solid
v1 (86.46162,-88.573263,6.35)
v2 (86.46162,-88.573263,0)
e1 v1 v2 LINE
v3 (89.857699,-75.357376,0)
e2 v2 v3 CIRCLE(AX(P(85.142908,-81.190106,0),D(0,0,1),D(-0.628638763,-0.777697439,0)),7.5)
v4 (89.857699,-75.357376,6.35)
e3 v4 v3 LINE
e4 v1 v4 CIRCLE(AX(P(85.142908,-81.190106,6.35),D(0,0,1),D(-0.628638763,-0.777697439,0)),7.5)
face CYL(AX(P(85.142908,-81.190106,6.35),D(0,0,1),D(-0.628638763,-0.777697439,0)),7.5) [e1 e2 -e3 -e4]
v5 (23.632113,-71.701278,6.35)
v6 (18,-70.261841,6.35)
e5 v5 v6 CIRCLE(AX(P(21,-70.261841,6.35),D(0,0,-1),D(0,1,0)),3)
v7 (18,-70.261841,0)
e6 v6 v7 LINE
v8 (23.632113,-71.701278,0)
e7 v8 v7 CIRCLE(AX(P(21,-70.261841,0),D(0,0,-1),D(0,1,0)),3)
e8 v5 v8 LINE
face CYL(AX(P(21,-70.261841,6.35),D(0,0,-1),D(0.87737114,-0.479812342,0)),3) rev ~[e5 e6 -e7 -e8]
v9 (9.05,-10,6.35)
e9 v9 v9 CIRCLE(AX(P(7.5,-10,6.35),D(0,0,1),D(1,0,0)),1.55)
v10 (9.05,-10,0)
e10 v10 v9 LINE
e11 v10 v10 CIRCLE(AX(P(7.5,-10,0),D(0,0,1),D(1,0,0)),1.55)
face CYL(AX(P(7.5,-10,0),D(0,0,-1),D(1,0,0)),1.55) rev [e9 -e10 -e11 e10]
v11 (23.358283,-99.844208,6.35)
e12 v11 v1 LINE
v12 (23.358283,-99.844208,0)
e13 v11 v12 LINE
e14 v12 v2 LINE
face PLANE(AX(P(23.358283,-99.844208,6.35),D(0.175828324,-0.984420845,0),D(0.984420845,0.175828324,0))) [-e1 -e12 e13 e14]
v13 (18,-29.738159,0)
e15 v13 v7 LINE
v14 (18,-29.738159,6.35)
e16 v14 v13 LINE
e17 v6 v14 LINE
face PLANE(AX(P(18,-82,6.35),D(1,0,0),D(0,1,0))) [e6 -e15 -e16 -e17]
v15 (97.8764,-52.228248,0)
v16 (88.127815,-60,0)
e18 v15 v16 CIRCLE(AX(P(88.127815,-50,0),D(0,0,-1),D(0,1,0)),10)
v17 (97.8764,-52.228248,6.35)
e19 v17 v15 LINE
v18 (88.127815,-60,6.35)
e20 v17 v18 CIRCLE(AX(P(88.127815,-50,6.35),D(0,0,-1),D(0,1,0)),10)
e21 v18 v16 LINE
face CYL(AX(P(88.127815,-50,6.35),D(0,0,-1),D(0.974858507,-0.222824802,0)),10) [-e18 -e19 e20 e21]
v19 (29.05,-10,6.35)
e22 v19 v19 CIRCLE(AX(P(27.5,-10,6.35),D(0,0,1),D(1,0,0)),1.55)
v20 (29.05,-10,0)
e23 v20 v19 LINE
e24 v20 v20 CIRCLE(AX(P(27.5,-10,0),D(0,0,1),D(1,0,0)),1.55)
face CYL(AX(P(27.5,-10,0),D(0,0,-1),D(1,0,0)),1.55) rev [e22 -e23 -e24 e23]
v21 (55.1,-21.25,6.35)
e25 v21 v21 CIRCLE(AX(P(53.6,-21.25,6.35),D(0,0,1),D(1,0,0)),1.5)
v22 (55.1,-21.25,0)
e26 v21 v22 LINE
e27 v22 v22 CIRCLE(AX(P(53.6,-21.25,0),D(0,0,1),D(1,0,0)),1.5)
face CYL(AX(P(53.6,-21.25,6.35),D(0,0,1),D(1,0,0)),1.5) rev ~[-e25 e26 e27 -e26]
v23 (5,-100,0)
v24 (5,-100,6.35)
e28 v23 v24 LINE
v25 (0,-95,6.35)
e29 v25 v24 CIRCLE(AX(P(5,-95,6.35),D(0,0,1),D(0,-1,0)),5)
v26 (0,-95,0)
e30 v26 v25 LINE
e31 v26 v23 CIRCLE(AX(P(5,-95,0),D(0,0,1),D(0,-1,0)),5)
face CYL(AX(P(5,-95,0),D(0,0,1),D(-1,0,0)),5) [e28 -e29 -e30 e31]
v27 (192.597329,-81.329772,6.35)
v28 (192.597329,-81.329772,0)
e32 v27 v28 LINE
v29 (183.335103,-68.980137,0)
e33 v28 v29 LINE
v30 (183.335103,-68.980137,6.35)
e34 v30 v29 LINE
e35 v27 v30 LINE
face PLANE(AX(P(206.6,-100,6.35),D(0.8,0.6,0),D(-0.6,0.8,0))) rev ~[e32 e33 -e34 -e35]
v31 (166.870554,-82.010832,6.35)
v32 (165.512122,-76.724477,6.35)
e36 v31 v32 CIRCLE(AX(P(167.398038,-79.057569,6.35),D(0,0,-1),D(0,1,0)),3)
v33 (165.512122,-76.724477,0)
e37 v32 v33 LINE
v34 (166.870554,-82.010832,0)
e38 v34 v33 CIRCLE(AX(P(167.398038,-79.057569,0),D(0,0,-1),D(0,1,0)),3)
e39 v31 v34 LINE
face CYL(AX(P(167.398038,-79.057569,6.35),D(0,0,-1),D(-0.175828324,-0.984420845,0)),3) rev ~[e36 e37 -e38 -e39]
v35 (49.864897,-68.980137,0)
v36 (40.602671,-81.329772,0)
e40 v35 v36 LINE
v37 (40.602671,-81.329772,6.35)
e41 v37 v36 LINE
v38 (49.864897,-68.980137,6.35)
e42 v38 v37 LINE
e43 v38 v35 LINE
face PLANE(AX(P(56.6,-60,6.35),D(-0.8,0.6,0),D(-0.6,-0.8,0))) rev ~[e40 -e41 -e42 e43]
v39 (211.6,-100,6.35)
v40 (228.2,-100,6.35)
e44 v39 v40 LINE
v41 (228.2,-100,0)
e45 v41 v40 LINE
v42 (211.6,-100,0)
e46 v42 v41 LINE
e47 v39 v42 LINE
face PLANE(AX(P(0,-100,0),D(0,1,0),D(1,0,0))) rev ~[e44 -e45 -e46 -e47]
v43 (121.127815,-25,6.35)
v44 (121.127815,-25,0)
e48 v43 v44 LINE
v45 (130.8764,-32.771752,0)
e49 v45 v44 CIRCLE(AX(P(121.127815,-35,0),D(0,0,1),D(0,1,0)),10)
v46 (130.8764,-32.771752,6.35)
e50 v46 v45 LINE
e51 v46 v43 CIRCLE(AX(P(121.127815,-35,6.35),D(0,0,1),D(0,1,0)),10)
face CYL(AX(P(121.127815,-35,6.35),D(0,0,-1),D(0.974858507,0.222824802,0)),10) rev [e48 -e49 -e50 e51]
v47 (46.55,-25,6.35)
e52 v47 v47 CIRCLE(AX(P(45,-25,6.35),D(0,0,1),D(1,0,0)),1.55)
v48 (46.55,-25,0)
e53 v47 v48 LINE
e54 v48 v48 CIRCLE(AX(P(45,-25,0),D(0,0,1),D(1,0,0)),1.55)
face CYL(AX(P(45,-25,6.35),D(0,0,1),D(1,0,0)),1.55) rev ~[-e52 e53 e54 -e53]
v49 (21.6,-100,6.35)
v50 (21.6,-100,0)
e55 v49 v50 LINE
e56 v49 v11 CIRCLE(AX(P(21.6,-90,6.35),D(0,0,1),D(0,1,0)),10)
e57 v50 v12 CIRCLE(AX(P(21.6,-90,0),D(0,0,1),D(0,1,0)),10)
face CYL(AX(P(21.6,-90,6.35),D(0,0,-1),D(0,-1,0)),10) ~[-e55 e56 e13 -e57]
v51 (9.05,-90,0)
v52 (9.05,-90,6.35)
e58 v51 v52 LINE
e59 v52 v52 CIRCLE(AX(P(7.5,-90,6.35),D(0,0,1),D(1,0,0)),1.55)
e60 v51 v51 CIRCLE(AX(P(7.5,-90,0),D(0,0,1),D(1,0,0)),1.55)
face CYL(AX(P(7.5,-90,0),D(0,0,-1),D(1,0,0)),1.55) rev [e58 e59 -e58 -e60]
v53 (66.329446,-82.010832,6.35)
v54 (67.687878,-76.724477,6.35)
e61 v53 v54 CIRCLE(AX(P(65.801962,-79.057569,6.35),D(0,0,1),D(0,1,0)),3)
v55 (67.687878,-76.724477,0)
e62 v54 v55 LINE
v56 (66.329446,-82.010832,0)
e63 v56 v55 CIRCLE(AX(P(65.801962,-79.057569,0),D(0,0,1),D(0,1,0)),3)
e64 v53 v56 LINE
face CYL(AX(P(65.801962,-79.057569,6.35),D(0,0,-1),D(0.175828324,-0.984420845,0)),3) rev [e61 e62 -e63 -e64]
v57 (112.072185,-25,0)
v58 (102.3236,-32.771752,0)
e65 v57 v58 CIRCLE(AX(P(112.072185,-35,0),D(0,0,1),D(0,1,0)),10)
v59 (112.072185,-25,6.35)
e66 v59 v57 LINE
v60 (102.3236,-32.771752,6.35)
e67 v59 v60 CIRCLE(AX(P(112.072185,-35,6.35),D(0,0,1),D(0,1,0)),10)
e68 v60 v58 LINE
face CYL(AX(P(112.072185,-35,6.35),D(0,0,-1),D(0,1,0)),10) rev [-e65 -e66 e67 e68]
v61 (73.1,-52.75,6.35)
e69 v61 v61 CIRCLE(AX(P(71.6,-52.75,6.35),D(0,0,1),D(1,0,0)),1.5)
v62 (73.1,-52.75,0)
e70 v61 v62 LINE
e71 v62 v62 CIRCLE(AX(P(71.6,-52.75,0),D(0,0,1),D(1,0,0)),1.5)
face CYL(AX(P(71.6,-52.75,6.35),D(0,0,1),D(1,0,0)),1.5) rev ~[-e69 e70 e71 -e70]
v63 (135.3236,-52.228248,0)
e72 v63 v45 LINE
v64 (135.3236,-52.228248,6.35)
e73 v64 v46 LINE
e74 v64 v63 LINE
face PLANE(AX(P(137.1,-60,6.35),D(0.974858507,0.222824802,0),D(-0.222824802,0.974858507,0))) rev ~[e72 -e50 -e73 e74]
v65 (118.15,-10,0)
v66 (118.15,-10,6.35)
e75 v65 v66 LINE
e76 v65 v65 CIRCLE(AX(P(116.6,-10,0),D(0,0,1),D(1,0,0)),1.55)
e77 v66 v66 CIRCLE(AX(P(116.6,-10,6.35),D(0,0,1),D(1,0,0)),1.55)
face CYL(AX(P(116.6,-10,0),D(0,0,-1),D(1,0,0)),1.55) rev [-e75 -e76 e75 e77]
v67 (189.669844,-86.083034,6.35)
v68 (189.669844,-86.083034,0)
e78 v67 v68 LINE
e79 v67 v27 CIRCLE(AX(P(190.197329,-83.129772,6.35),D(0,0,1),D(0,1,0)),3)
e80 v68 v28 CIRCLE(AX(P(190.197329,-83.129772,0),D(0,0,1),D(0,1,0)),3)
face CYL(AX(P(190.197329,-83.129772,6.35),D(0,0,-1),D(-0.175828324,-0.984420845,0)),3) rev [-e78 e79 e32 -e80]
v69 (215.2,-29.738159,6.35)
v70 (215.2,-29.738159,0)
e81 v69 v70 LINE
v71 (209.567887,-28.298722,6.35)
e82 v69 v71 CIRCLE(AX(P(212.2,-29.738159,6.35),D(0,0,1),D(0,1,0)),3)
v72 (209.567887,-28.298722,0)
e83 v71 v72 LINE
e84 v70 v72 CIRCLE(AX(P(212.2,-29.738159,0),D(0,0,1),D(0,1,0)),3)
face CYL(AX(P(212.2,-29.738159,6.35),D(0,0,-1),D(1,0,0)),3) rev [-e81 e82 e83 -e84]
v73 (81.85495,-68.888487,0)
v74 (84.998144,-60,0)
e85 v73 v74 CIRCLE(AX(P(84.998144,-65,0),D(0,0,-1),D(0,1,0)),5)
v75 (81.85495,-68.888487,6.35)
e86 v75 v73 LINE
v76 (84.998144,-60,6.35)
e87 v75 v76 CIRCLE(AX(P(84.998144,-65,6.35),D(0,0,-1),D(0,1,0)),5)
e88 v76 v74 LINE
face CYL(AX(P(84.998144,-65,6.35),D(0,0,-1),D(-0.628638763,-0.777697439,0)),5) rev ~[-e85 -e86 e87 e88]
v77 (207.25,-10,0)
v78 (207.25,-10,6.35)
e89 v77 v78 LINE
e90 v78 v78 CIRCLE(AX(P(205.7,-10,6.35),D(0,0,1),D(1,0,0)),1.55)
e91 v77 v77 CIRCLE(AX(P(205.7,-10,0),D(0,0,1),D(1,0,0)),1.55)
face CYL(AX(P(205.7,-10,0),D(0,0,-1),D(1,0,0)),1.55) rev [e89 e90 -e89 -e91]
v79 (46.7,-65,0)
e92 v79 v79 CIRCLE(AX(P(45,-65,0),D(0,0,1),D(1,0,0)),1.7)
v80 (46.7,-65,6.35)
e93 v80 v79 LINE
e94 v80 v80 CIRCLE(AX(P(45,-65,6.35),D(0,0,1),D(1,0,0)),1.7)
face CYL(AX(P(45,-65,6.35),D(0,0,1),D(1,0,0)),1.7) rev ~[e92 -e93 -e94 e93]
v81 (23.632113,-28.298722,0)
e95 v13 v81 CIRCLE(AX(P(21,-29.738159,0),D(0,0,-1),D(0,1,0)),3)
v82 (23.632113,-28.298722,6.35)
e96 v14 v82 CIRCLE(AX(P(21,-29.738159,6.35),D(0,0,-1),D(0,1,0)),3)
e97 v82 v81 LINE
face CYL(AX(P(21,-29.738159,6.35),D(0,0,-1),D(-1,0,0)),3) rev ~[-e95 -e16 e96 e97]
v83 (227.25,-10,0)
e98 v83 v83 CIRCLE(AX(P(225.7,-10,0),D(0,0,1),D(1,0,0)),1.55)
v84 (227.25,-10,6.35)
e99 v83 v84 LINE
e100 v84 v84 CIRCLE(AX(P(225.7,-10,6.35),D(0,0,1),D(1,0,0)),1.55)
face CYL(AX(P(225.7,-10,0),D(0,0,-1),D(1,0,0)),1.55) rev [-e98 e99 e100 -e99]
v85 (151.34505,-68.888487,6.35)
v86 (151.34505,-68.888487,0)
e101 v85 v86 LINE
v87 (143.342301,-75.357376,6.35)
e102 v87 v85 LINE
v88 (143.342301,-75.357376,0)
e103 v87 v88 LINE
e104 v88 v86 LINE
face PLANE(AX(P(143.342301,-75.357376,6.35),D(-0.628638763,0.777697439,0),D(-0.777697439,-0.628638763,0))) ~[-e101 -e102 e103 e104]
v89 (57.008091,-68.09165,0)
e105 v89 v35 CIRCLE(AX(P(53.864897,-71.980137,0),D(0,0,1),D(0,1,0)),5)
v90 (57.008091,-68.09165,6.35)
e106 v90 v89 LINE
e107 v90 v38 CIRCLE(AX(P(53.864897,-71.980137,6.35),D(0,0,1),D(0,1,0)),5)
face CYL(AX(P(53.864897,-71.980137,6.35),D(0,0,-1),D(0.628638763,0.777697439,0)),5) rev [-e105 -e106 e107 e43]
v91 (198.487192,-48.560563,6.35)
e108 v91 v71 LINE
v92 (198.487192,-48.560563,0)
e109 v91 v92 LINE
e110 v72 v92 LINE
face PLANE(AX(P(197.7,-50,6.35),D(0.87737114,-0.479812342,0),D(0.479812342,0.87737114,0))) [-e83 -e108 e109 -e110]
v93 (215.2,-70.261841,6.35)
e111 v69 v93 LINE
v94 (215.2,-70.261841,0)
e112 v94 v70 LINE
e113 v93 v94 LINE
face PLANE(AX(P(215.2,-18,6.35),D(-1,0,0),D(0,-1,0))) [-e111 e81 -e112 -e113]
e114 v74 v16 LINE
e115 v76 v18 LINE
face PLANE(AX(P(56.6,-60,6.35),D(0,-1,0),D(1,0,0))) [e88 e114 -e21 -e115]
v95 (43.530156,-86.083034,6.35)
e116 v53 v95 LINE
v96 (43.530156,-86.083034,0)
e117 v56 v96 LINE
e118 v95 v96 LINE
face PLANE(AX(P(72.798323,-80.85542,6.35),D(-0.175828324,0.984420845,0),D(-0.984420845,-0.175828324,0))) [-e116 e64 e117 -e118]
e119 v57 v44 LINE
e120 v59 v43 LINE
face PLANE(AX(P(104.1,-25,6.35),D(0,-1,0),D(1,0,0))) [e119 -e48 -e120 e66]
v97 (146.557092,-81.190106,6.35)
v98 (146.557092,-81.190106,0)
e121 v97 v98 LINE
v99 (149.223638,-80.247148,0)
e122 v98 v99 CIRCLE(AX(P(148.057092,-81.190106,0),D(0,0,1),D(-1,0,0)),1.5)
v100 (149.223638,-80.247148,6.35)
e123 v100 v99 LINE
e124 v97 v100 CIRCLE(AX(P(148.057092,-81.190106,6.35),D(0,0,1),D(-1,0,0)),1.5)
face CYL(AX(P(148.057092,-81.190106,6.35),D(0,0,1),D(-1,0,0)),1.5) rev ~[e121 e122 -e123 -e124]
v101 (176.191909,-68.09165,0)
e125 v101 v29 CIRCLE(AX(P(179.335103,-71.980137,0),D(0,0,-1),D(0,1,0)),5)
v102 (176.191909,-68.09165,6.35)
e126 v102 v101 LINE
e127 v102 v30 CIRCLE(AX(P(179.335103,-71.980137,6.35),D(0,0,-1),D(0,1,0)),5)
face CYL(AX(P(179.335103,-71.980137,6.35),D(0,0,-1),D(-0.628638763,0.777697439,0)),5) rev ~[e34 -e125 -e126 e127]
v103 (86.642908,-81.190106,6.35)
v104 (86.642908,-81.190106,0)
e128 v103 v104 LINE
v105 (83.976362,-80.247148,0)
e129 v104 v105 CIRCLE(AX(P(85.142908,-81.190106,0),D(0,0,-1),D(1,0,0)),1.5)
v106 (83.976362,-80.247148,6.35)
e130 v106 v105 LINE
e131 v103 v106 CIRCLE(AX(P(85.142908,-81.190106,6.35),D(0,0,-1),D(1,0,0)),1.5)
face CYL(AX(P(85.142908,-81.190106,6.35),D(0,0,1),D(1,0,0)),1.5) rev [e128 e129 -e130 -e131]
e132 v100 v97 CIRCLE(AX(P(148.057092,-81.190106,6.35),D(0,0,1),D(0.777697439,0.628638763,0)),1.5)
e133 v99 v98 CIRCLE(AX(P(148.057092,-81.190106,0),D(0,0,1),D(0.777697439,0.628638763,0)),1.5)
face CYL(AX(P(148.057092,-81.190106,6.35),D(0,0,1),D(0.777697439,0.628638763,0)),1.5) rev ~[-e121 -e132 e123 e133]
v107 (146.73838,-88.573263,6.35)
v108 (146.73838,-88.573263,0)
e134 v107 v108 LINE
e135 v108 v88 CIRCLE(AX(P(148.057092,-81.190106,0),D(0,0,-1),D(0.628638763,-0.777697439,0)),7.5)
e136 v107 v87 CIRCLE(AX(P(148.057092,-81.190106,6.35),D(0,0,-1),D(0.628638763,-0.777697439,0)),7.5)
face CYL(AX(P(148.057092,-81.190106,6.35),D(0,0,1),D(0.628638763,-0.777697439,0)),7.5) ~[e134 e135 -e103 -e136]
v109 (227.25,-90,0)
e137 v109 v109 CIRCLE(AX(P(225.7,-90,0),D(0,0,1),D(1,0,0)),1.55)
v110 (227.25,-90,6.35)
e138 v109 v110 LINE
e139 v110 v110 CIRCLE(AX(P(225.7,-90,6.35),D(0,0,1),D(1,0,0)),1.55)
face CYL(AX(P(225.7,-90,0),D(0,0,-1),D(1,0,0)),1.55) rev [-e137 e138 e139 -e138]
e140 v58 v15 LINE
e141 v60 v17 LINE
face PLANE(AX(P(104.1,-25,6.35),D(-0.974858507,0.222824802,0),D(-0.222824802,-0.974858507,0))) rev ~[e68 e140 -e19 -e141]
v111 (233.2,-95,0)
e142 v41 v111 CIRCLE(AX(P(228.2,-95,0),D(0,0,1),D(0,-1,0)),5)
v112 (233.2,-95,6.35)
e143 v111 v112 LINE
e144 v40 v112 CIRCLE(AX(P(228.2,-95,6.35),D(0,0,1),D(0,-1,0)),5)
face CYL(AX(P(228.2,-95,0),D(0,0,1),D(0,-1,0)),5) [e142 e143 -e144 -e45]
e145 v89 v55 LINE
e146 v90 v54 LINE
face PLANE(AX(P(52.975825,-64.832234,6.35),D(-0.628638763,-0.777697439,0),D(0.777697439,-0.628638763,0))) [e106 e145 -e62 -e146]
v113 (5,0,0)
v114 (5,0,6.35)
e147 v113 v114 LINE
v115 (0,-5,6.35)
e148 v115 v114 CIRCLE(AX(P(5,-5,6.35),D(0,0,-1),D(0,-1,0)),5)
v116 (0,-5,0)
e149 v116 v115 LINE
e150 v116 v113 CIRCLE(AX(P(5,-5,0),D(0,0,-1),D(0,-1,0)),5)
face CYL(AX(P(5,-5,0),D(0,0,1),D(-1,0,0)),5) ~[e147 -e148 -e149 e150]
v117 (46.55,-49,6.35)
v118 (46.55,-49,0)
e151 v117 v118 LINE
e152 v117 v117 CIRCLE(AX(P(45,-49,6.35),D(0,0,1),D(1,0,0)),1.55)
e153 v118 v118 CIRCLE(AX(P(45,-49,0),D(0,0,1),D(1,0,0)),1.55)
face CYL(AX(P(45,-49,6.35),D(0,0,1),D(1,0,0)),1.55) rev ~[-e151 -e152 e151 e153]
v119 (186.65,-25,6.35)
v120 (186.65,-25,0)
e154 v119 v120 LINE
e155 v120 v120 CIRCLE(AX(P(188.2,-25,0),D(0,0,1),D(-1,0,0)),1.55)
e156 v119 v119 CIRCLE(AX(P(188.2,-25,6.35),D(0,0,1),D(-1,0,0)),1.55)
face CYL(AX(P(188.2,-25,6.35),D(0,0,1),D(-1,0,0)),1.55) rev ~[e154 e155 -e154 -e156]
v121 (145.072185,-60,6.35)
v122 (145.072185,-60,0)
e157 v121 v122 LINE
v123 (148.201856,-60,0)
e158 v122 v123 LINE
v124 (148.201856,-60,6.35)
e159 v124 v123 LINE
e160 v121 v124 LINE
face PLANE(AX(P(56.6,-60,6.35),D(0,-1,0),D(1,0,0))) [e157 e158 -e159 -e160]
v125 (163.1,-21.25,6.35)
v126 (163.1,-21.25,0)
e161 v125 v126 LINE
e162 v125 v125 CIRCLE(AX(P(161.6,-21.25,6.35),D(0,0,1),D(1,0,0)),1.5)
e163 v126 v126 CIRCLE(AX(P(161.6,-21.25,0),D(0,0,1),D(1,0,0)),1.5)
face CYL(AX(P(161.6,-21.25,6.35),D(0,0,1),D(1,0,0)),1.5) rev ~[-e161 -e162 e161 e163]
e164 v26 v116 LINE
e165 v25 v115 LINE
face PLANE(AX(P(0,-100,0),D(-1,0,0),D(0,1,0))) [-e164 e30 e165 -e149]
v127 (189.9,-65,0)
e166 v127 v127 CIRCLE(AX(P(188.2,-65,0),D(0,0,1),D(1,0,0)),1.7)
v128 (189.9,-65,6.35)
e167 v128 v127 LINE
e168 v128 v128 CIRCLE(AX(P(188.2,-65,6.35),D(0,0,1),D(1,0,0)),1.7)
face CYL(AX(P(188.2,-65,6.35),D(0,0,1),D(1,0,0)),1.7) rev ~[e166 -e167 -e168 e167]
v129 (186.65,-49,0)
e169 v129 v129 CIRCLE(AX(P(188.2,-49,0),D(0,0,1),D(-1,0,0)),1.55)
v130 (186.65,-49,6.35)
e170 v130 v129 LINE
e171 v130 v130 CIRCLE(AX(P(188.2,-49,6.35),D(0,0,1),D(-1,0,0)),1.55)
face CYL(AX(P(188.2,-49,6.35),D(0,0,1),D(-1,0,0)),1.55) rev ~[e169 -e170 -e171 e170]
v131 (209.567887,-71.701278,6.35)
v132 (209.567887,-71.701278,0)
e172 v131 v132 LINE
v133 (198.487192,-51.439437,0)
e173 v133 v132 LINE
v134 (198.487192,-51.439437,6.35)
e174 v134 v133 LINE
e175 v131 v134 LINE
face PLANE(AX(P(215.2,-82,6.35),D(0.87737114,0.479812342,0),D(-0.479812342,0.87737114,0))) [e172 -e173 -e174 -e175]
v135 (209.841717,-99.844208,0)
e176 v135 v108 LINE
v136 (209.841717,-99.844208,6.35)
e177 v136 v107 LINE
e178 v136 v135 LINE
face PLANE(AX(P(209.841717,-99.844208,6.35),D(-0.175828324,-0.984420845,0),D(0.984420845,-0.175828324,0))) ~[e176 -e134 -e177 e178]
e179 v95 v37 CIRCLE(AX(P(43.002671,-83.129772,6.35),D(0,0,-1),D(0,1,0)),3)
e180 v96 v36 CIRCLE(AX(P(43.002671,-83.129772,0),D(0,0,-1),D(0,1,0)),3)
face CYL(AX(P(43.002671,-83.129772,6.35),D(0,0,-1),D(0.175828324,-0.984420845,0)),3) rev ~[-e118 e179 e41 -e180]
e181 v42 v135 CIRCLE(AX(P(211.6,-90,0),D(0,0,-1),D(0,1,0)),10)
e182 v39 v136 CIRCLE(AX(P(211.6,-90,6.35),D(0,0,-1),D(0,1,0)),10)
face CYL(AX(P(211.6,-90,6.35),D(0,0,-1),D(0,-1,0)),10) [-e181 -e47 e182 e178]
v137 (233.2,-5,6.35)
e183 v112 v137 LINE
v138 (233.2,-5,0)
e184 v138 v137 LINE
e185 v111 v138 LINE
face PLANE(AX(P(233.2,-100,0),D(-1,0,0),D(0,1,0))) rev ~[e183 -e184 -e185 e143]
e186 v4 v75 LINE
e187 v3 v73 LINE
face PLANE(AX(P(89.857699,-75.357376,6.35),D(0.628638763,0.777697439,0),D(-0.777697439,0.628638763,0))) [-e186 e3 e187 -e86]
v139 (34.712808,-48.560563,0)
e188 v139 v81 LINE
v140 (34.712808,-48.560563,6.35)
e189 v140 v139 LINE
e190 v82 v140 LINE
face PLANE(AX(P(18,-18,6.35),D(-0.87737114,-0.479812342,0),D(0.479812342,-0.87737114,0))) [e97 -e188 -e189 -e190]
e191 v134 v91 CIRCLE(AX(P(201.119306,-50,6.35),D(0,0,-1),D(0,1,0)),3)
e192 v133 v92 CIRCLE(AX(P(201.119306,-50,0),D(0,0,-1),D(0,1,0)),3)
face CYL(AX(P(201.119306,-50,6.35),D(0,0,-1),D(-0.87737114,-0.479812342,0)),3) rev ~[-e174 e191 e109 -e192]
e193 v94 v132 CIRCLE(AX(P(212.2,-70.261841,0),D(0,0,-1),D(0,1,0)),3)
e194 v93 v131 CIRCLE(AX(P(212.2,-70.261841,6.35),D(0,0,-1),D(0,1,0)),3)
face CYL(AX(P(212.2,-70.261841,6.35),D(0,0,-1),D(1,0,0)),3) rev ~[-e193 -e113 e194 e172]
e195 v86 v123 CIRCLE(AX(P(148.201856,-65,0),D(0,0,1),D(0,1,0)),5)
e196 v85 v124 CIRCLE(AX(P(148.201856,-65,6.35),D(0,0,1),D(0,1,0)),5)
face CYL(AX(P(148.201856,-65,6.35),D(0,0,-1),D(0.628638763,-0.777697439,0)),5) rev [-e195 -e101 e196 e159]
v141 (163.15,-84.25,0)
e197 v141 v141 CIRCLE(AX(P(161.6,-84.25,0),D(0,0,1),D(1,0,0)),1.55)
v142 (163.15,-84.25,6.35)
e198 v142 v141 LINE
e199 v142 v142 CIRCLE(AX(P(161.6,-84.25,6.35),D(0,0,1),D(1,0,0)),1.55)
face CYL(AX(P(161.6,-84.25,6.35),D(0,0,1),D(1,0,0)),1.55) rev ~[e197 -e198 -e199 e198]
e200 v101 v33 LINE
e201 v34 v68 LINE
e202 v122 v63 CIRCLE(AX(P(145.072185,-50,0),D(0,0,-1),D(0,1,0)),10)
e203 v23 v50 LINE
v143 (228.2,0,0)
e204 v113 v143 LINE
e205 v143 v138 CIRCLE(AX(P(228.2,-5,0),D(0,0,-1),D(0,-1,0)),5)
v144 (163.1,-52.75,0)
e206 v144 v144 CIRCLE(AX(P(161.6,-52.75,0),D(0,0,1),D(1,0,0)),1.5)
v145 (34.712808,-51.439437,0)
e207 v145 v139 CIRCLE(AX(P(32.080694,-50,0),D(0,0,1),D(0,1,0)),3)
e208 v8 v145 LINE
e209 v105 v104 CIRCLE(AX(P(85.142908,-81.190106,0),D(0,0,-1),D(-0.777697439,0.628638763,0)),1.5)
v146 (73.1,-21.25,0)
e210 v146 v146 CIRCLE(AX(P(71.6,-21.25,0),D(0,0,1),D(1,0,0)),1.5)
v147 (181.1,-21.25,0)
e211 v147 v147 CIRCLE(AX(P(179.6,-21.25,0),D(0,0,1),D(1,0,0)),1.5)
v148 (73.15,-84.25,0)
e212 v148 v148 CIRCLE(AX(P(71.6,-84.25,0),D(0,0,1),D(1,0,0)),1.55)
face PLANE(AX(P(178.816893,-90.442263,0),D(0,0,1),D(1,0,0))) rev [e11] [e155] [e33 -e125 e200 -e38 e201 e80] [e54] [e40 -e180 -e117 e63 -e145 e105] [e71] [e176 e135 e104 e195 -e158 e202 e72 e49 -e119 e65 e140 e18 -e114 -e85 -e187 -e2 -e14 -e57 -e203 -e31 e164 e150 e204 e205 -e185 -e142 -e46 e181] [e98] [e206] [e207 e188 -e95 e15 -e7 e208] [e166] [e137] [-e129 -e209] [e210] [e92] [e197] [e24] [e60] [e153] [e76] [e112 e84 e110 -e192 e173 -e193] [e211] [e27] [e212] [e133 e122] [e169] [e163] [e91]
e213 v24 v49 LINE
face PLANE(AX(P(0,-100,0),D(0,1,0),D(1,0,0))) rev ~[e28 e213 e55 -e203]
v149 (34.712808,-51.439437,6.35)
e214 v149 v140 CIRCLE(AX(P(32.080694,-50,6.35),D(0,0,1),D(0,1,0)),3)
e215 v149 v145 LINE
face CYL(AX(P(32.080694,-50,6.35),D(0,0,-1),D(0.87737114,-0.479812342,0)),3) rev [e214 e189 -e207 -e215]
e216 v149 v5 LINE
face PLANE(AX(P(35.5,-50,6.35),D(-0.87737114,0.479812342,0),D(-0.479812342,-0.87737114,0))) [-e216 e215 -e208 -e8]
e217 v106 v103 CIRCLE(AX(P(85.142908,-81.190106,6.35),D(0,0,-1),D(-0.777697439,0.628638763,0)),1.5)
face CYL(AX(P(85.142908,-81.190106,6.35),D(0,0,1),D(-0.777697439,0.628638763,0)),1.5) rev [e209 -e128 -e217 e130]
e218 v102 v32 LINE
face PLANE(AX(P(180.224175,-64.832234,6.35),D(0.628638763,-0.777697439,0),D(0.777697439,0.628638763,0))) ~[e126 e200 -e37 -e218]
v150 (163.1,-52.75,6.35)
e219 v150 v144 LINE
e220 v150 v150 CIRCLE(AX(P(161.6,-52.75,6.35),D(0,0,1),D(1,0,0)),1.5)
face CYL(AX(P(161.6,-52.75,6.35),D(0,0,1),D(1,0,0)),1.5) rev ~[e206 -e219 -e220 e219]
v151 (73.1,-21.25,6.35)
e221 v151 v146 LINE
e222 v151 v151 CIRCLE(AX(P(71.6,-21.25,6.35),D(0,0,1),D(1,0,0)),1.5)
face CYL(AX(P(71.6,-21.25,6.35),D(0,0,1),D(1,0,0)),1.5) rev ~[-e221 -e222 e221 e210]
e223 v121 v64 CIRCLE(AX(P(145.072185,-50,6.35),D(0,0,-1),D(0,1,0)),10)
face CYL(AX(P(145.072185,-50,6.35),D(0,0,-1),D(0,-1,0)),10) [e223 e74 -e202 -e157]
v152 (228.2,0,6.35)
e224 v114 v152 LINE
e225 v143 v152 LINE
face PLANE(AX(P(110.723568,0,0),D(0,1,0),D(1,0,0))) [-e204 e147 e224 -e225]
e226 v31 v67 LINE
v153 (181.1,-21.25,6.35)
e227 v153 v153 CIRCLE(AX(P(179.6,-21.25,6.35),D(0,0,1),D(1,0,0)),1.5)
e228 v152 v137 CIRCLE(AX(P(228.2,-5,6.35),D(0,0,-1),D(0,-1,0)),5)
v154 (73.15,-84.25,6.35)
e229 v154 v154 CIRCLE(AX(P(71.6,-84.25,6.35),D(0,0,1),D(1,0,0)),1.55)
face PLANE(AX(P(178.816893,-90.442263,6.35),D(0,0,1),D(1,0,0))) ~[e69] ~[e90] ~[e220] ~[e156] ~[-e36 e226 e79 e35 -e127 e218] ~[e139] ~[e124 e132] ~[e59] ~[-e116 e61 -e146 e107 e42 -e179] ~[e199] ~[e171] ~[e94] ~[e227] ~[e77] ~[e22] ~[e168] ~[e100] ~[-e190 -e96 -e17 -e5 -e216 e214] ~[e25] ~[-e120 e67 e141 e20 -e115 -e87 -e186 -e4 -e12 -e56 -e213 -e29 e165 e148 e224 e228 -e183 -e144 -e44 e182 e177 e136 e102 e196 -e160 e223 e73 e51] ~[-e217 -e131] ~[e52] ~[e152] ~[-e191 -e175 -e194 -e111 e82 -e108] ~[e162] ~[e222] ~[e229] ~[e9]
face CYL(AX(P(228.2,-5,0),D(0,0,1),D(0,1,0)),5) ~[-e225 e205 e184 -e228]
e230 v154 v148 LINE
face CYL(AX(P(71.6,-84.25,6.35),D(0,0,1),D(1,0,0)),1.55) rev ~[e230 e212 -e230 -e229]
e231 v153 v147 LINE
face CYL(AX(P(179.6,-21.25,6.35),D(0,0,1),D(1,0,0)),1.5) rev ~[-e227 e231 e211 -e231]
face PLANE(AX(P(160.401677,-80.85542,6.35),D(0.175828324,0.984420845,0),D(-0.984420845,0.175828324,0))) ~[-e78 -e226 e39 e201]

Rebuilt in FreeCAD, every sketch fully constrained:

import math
import FreeCAD as App
import Part
import Sketcher
from FreeCAD import Vector
Q = App.Units.Quantity


def edges_at(feature, points):
    """Names of the edges that pass closest to the given points."""
    edges = feature.Shape.Edges
    near = lambda p: min(range(len(edges)), key=lambda i: edges[i].distToShape(Part.Vertex(*p))[0])
    return sorted({f"Edge{near(p) + 1}" for p in points})


def add_polygon(sketch, points):
    """Adds a closed chain of lines whose ends are joined by coincident constraints."""
    first, n = sketch.GeometryCount, len(points)
    for a, b in zip(points, points[1:] + points[:1]):
        sketch.addGeometry(Part.LineSegment(App.Vector(*a, 0), App.Vector(*b, 0)), False)
    for i in range(n):
        sketch.addConstraint(Sketcher.Constraint("Coincident", first + i, 2, first + (i + 1) % n, 1))

doc = App.newDocument("Part")
body = doc.addObject("PartDesign::Body", "Body")

# Sketch on XY plane
sketch1 = body.newObject("Sketcher::SketchObject", "Sketch")
sketch1.AttachmentSupport = (doc.getObject("XY_Plane"), [""])
sketch1.MapMode = "FlatFace"
add_polygon(sketch1, [(0, 0), (0, -100), (233.2, -100), (233.2, 0)])  # lines 0-3
sketch1.addGeometry(Part.Circle(Vector(7.5, -90, 0), Vector(0, 0, 1), 1.6), False)  # 4
sketch1.addGeometry(Part.Circle(Vector(225.7, -90, 0), Vector(0, 0, 1), 1.6), False)  # 5
sketch1.addGeometry(Part.Circle(Vector(7.5, -10, 0), Vector(0, 0, 1), 1.6), False)  # 6
sketch1.addGeometry(Part.Circle(Vector(27.5, -10, 0), Vector(0, 0, 1), 1.6), False)  # 7
sketch1.addGeometry(Part.Circle(Vector(116.6, -10, 0), Vector(0, 0, 1), 1.6), False)  # 8
sketch1.addGeometry(Part.Circle(Vector(205.7, -10, 0), Vector(0, 0, 1), 1.6), False)  # 9
sketch1.addGeometry(Part.Circle(Vector(225.7, -10, 0), Vector(0, 0, 1), 1.6), False)  # 10
sketch1.addConstraint([
    Sketcher.Constraint("Vertical", 0),
    Sketcher.Constraint("Horizontal", 1),
    Sketcher.Constraint("Vertical", 2),
    Sketcher.Constraint("Horizontal", 3),
    Sketcher.Constraint("Coincident", 3, 2, -1, 1),
    Sketcher.Constraint("Equal", 4, 5),
    Sketcher.Constraint("Equal", 5, 6),
    Sketcher.Constraint("Equal", 6, 7),
    Sketcher.Constraint("Equal", 7, 8),
    Sketcher.Constraint("Equal", 8, 9),
    Sketcher.Constraint("Equal", 9, 10),
    Sketcher.Constraint("Horizontal", 4, 3, 5, 3),
    Sketcher.Constraint("Horizontal", 6, 3, 7, 3),
    Sketcher.Constraint("Horizontal", 7, 3, 8, 3),
    Sketcher.Constraint("Horizontal", 8, 3, 9, 3),
    Sketcher.Constraint("Horizontal", 9, 3, 10, 3),
    Sketcher.Constraint("Vertical", 4, 3, 6, 3),
    Sketcher.Constraint("Vertical", 5, 3, 10, 3),
    Sketcher.Constraint("Diameter", 4, Q("3.1 mm")),
    Sketcher.Constraint("DistanceY", 0, 2, 0, 1, Q("100 mm")),
    Sketcher.Constraint("DistanceX", 1, 1, 1, 2, Q("233.2 mm")),
    Sketcher.Constraint("DistanceY", 4, 3, -1, 1, Q("90 mm")),
    Sketcher.Constraint("DistanceY", 6, 3, -1, 1, Q("10 mm")),
    Sketcher.Constraint("DistanceX", 6, 3, 7, 3, Q("20 mm")),
    Sketcher.Constraint("DistanceX", 9, 3, 5, 3, Q("20 mm")),
    Sketcher.Constraint("DistanceX", -1, 1, 4, 3, Q("7.5 mm")),
    Sketcher.Constraint("DistanceX", -1, 1, 5, 3, Q("225.7 mm")),
    Sketcher.Constraint("DistanceX", -1, 1, 8, 3, Q("116.6 mm")),
])
pad1 = body.newObject("PartDesign::Pad", "Pad")
pad1.Profile = sketch1
pad1.Length = 6.35
doc.recompute()

fillet = body.newObject("PartDesign::Fillet", "Fillet")
fillet.Base = (pad1, edges_at(pad1, [
    (233.2, -100, 3.175),
    (0, -100, 3.175),
    (0, 0, 3.175),
    (233.2, 0, 3.175),
]))
fillet.Radius = 5

# Sketch on XY plane
sketch2 = body.newObject("Sketcher::SketchObject", "Sketch001")
sketch2.AttachmentSupport = (doc.getObject("XY_Plane"), [""])
sketch2.MapMode = "FlatFace"
sketch2.AttachmentOffset = App.Placement(Vector(0, 0, 6.35), App.Rotation())
sketch2.addGeometry([
    Part.Circle(Vector(45, -25, 0), Vector(0, 0, 1), 1.6),
    Part.Circle(Vector(45, -49, 0), Vector(0, 0, 1), 1.6),
    Part.Circle(Vector(188.2, -49, 0), Vector(0, 0, 1), 1.6),
    Part.Circle(Vector(188.2, -25, 0), Vector(0, 0, 1), 1.6),
], False)
sketch2.addConstraint([
    Sketcher.Constraint("Equal", 0, 1),
    Sketcher.Constraint("Equal", 1, 2),
    Sketcher.Constraint("Equal", 2, 3),
    Sketcher.Constraint("Horizontal", 1, 3, 2, 3),
    Sketcher.Constraint("Horizontal", 0, 3, 3, 3),
    Sketcher.Constraint("Vertical", 0, 3, 1, 3),
    Sketcher.Constraint("Vertical", 2, 3, 3, 3),
    Sketcher.Constraint("Diameter", 0, Q("3.1 mm")),
    Sketcher.Constraint("DistanceX", -1, 1, 0, 3, Q("45 mm")),
    Sketcher.Constraint("DistanceY", 0, 3, -1, 1, Q("25 mm")),
    Sketcher.Constraint("DistanceY", 1, 3, -1, 1, Q("49 mm")),
    Sketcher.Constraint("DistanceX", -1, 1, 2, 3, Q("188.2 mm")),
])
pocket1 = body.newObject("PartDesign::Pocket", "Pocket")
pocket1.Profile = sketch2
pocket1.Length = 6.35

# Sketch on XY plane
sketch3 = body.newObject("Sketcher::SketchObject", "Sketch002")
sketch3.AttachmentSupport = (doc.getObject("XY_Plane"), [""])
sketch3.MapMode = "FlatFace"
sketch3.AttachmentOffset = App.Placement(Vector(0, 0, 6.35), App.Rotation())
add_polygon(sketch3, [(120.7, 0), (152.3, 0), (130.7, 24.7), (85.7, 24.7), (85.7, 12.7), (95.7, 12.7), (95.7, 16.7), (120.7, 16.7)])  # lines 0-7
sketch3.addConstraint([
    Sketcher.Constraint("Horizontal", 0),
    Sketcher.Constraint("Horizontal", 2),
    Sketcher.Constraint("Vertical", 3),
    Sketcher.Constraint("Horizontal", 4),
    Sketcher.Constraint("Vertical", 5),
    Sketcher.Constraint("Horizontal", 6),
    Sketcher.Constraint("Vertical", 7),
    Sketcher.Constraint("PointOnObject", 0, 2, -1),
    Sketcher.Constraint("DistanceX", 2, 2, 2, 1, Q("45 mm")),
    Sketcher.Constraint("DistanceX", 4, 1, 4, 2, Q("10 mm")),
    Sketcher.Constraint("DistanceX", 6, 1, 6, 2, Q("25 mm")),
    Sketcher.Constraint("DistanceY", 3, 2, 3, 1, Q("12 mm")),
    Sketcher.Constraint("DistanceY", 5, 1, 5, 2, Q("4 mm")),
    Sketcher.Constraint("DistanceY", 7, 2, 7, 1, Q("16.7 mm")),
    Sketcher.Constraint("DistanceX", 0, 1, 0, 2, Q("31.59 mm")),
    Sketcher.Constraint("DistanceX", -1, 1, 0, 2, Q("152.313568 mm")),
])
pad2 = body.newObject("PartDesign::Pad", "Pad001")
pad2.Profile = sketch3
pad2.Length = 6.35
pad2.Reversed = True
doc.recompute()

fillet2 = body.newObject("PartDesign::Fillet", "Fillet001")
fillet2.Base = (pad2, edges_at(pad2, [(85.724, 12.7, 3.175)]))
fillet2.Radius = 5
doc.recompute()

fillet3 = body.newObject("PartDesign::Fillet", "Fillet002")
fillet3.Base = (fillet2, edges_at(fillet2, [(120.724, 0, 3.175)]))
fillet3.Radius = 10
doc.recompute()

fillet4 = body.newObject("PartDesign::Fillet", "Fillet003")
fillet4.Base = (fillet3, edges_at(fillet3, [(85.724, 24.7, 3.175)]))
fillet4.Radius = 2
doc.recompute()

fillet5 = body.newObject("PartDesign::Fillet", "Fillet004")
fillet5.Base = (fillet4, edges_at(fillet4, [(130.724, 24.7, 3.175), (152.314, 0, 3.175)]))
fillet5.Radius = 20
doc.recompute()

fillet6 = body.newObject("PartDesign::Fillet", "Fillet005")
fillet6.Base = (fillet5, edges_at(fillet5, [(120.724, 16.7, 3.175)]))
fillet6.Radius = 5

# Sketch on XY plane
sketch4 = body.newObject("Sketcher::SketchObject", "Sketch003")
sketch4.AttachmentSupport = (doc.getObject("XY_Plane"), [""])
sketch4.MapMode = "FlatFace"
sketch4.addGeometry([
    Part.LineSegment(Vector(161.4, 0, 0), Vector(110.7, 0, 0)),  # 0
    Part.ArcOfCircle(Part.Circle(Vector(110.7, 10, 0), Vector(0, 0, 1), 10), math.radians(-90), math.radians(0)),  # 1
    Part.LineSegment(Vector(120.7, 10, 0), Vector(120.7, 11.7, 0)),  # 2
    Part.ArcOfCircle(Part.Circle(Vector(115.7, 11.7, 0), Vector(0, 0, 1), 5), math.radians(0), math.radians(90)),  # 3
    Part.LineSegment(Vector(115.7, 16.7, 0), Vector(95.7, 16.7, 0)),  # 4
    Part.LineSegment(Vector(95.7, 16.7, 0), Vector(95.7, 12.7, 0)),  # 5
    Part.LineSegment(Vector(95.7, 12.7, 0), Vector(90.7, 12.7, 0)),  # 6
    Part.ArcOfCircle(Part.Circle(Vector(90.7, 17.7, 0), Vector(0, 0, 1), 5), math.radians(180), math.radians(270)),  # 7
    Part.LineSegment(Vector(85.7, 17.7, 0), Vector(85.7, 22.7, 0)),  # 8
    Part.ArcOfCircle(Part.Circle(Vector(87.7, 22.7, 0), Vector(0, 0, 1), 2), math.radians(90), math.radians(180)),  # 9
    Part.LineSegment(Vector(87.7, 24.7, 0), Vector(121.6, 24.7, 0)),  # 10
    Part.ArcOfCircle(Part.Circle(Vector(121.6, 4.7, 0), Vector(0, 0, 1), 20), math.radians(41), math.radians(90)),  # 11
    Part.LineSegment(Vector(136.7, 17.9, 0), Vector(146.3, 6.8, 0)),  # 12
    Part.ArcOfCircle(Part.Circle(Vector(161.4, 20, 0), Vector(0, 0, 1), 20), math.radians(-139), math.radians(-90)),  # 13
], False)
sketch4.addConstraint([
    Sketcher.Constraint("Tangent", 0, 2, 1, 1),
    Sketcher.Constraint("Tangent", 1, 2, 2, 1),
    Sketcher.Constraint("Tangent", 2, 2, 3, 1),
    Sketcher.Constraint("Tangent", 3, 2, 4, 1),
    Sketcher.Constraint("Coincident", 4, 2, 5, 1),
    Sketcher.Constraint("Coincident", 5, 2, 6, 1),
    Sketcher.Constraint("Tangent", 6, 2, 7, 2),
    Sketcher.Constraint("Tangent", 7, 1, 8, 1),
    Sketcher.Constraint("Tangent", 8, 2, 9, 2),
    Sketcher.Constraint("Tangent", 9, 1, 10, 1),
    Sketcher.Constraint("Tangent", 10, 2, 11, 2),
    Sketcher.Constraint("Tangent", 11, 1, 12, 1),
    Sketcher.Constraint("Tangent", 12, 2, 13, 1),
    Sketcher.Constraint("Tangent", 13, 2, 0, 1),
    Sketcher.Constraint("Horizontal", 0),
    Sketcher.Constraint("Vertical", 2),
    Sketcher.Constraint("Horizontal", 4),
    Sketcher.Constraint("Vertical", 5),
    Sketcher.Constraint("Horizontal", 6),
    Sketcher.Constraint("Vertical", 8),
    Sketcher.Constraint("Horizontal", 10),
    Sketcher.Constraint("Equal", 3, 7),
    Sketcher.Constraint("Equal", 11, 13),
    Sketcher.Constraint("PointOnObject", 0, 2, -1),
    Sketcher.Constraint("Equal", 6, 8),
    Sketcher.Constraint("Radius", 1, Q("10 mm")),
    Sketcher.Constraint("Radius", 3, Q("5 mm")),
    Sketcher.Constraint("Radius", 9, Q("2 mm")),
    Sketcher.Constraint("Radius", 11, Q("20 mm")),
    Sketcher.Constraint("DistanceX", 4, 2, 4, 1, Q("20 mm")),
    Sketcher.Constraint("DistanceX", 6, 2, 6, 1, Q("5 mm")),
    Sketcher.Constraint("DistanceY", 5, 2, 5, 1, Q("4 mm")),
    Sketcher.Constraint("DistanceY", 2, 1, 2, 2, Q("1.7 mm")),
    Sketcher.Constraint("DistanceX", 0, 2, 0, 1, Q("50.67159 mm")),
    Sketcher.Constraint("DistanceX", 10, 1, 10, 2, Q("33.91841 mm")),
    Sketcher.Constraint("DistanceX", -1, 1, 1, 3, Q("110.723568 mm")),
])
pocket2 = body.newObject("PartDesign::Pocket", "Pocket001")
pocket2.Profile = sketch4
pocket2.Length = 10
pocket2.Reversed = True

# Sketch on XY plane
sketch5 = body.newObject("Sketcher::SketchObject", "Sketch004")
sketch5.AttachmentSupport = (doc.getObject("XY_Plane"), [""])
sketch5.MapMode = "FlatFace"
sketch5.AttachmentOffset = App.Placement(Vector(0, 0, 6.35), App.Rotation())
add_polygon(sketch5, [(57, -60), (27, -100), (207, -100), (177, -60)])  # lines 0-3
sketch5.addConstraint([
    Sketcher.Constraint("Horizontal", 1),
    Sketcher.Constraint("Horizontal", 3),
    Sketcher.Constraint("Equal", 0, 2),
    Sketcher.Constraint("DistanceX", 1, 1, 1, 2, Q("180 mm")),
    Sketcher.Constraint("DistanceX", 3, 2, 3, 1, Q("120 mm")),
    Sketcher.Constraint("Distance", 0, Q("50 mm")),
    Sketcher.Constraint("DistanceY", 0, 2, -1, 1, Q("100 mm")),
    Sketcher.Constraint("DistanceX", -1, 1, 0, 2, Q("26.6 mm")),
])
pocket3 = body.newObject("PartDesign::Pocket", "Pocket002")
pocket3.Profile = sketch5
pocket3.Length = 10

# Sketch on XY plane
sketch6 = body.newObject("Sketcher::SketchObject", "Sketch005")
sketch6.AttachmentSupport = (doc.getObject("XY_Plane"), [""])
sketch6.MapMode = "FlatFace"
sketch6.AttachmentOffset = App.Placement(Vector(0, 0, 6.35), App.Rotation())
sketch6.addGeometry([
    Part.Circle(Vector(71.6, -21.2, 0), Vector(0, 0, 1), 1.5),
    Part.Circle(Vector(161.6, -21.2, 0), Vector(0, 0, 1), 1.5),
    Part.Circle(Vector(161.6, -52.8, 0), Vector(0, 0, 1), 1.5),
    Part.Circle(Vector(71.6, -52.8, 0), Vector(0, 0, 1), 1.5),
], False)
sketch6.addConstraint([
    Sketcher.Constraint("Equal", 0, 1),
    Sketcher.Constraint("Equal", 1, 2),
    Sketcher.Constraint("Equal", 2, 3),
    Sketcher.Constraint("Horizontal", 0, 3, 1, 3),
    Sketcher.Constraint("Horizontal", 2, 3, 3, 3),
    Sketcher.Constraint("Vertical", 1, 3, 2, 3),
    Sketcher.Constraint("Vertical", 0, 3, 3, 3),
    Sketcher.Constraint("Diameter", 0, Q("3 mm")),
    Sketcher.Constraint("DistanceX", 0, 3, 1, 3, Q("90 mm")),
    Sketcher.Constraint("DistanceX", -1, 1, 0, 3, Q("71.6 mm")),
    Sketcher.Constraint("DistanceY", 2, 3, 1, 3, Q("31.5 mm")),
    Sketcher.Constraint("DistanceY", 0, 3, -1, 1, Q("21.25 mm")),
])
pocket4 = body.newObject("PartDesign::Pocket", "Pocket003")
pocket4.Profile = sketch6
pocket4.Length = 10
doc.recompute()

fillet7 = body.newObject("PartDesign::Fillet", "Fillet006")
fillet7.Base = (pocket4, edges_at(pocket4, [
    (206.6, -100, 3.175),
    (26.6, -100, 3.175),
    (56.6, -60, 3.175),
    (176.6, -60, 3.175),
]))
fillet7.Radius = 10

# Sketch on XY plane
sketch7 = body.newObject("Sketcher::SketchObject", "Sketch006")
sketch7.AttachmentSupport = (doc.getObject("XY_Plane"), [""])
sketch7.MapMode = "FlatFace"
sketch7.AttachmentOffset = App.Placement(Vector(0, 0, 6.35), App.Rotation())
add_polygon(sketch7, [(96, -60), (137, -60), (129, -25), (104, -25)])  # lines 0-3
sketch7.addConstraint([
    Sketcher.Constraint("Horizontal", 0),
    Sketcher.Constraint("Horizontal", 2),
    Sketcher.Constraint("Equal", 1, 3),
    Sketcher.Constraint("DistanceX", 0, 1, 0, 2, Q("41 mm")),
    Sketcher.Constraint("DistanceX", 2, 2, 2, 1, Q("25 mm")),
    Sketcher.Constraint("DistanceY", 0, 2, -1, 1, Q("60 mm")),
    Sketcher.Constraint("DistanceY", 1, 2, -1, 1, Q("25 mm")),
    Sketcher.Constraint("DistanceX", -1, 1, 0, 2, Q("137.1 mm")),
])
pocket5 = body.newObject("PartDesign::Pocket", "Pocket004")
pocket5.Profile = sketch7
pocket5.Length = 10
doc.recompute()

fillet8 = body.newObject("PartDesign::Fillet", "Fillet007")
fillet8.Base = (pocket5, edges_at(pocket5, [
    (137.1, -60, 3.175),
    (96.1, -60, 3.175),
    (104.1, -25, 3.175),
    (129.1, -25, 3.175),
]))
fillet8.Radius = 10

# Sketch on XY plane
sketch8 = body.newObject("Sketcher::SketchObject", "Sketch007")
sketch8.AttachmentSupport = (doc.getObject("XY_Plane"), [""])
sketch8.MapMode = "FlatFace"
sketch8.AttachmentOffset = App.Placement(Vector(0, 0, 6.35), App.Rotation())
sketch8.addGeometry([
    Part.Circle(Vector(53.6, -21.2, 0), Vector(0, 0, 1), 1.5),
    Part.Circle(Vector(179.6, -21.2, 0), Vector(0, 0, 1), 1.5),
], False)
sketch8.addConstraint([
    Sketcher.Constraint("Equal", 0, 1),
    Sketcher.Constraint("Horizontal", 0, 3, 1, 3),
    Sketcher.Constraint("Diameter", 0, Q("3 mm")),
    Sketcher.Constraint("DistanceX", 0, 3, 1, 3, Q("126 mm")),
    Sketcher.Constraint("DistanceX", -1, 1, 0, 3, Q("53.6 mm")),
    Sketcher.Constraint("DistanceY", 0, 3, -1, 1, Q("21.25 mm")),
])
pocket6 = body.newObject("PartDesign::Pocket", "Pocket005")
pocket6.Profile = sketch8
pocket6.Length = 10

# Sketch on XY plane
sketch9 = body.newObject("Sketcher::SketchObject", "Sketch008")
sketch9.AttachmentSupport = (doc.getObject("XY_Plane"), [""])
sketch9.MapMode = "FlatFace"
sketch9.AttachmentOffset = App.Placement(Vector(0, 0, 6.35), App.Rotation())
sketch9.addGeometry([
    Part.LineSegment(Vector(53.6, -64, 0), Vector(53, -64.8, 0)),  # 0
    Part.LineSegment(Vector(53, -64.8, 0), Vector(80.4, -87, 0)),  # 1
    Part.ArcOfCircle(Part.Circle(Vector(85.1, -81.2, 0), Vector(0, 0, 1), 7.5), math.radians(-129), math.radians(51)),  # 2
    Part.LineSegment(Vector(89.9, -75.4, 0), Vector(70.9, -60, 0)),  # 3
    Part.LineSegment(Vector(70.9, -60, 0), Vector(61.6, -60, 0)),  # 4
    Part.ArcOfCircle(Part.Circle(Vector(61.6, -70, 0), Vector(0, 0, 1), 10), math.radians(90), math.radians(143)),  # 5
    Part.ArcOfCircle(Part.Circle(Vector(85.1, -81.2, 0), Vector(0, 0, 1), 1.5), math.radians(141), math.radians(360)),  # 6
    Part.ArcOfCircle(Part.Circle(Vector(85.1, -81.2, 0), Vector(0, 0, 1), 1.5), math.radians(0), math.radians(141)),  # 7
], False)
sketch9.addConstraint([
    Sketcher.Constraint("Coincident", 0, 2, 1, 1),
    Sketcher.Constraint("Tangent", 1, 2, 2, 1),
    Sketcher.Constraint("Tangent", 2, 2, 3, 1),
    Sketcher.Constraint("Coincident", 3, 2, 4, 1),
    Sketcher.Constraint("Tangent", 4, 2, 5, 1),
    Sketcher.Constraint("Tangent", 5, 2, 0, 1),
    Sketcher.Constraint("Tangent", 6, 1, 7, 2),
    Sketcher.Constraint("Coincident", 7, 1, 6, 2),
    Sketcher.Constraint("Horizontal", 4),
    Sketcher.Constraint("Coincident", 6, 3, 2, 3),
    Sketcher.Constraint("Parallel", 1, 3),
    Sketcher.Constraint("Horizontal", 6, 3, 7, 1),
    Sketcher.Constraint("Radius", 5, Q("10 mm")),
    Sketcher.Constraint("Radius", 2, Q("7.5 mm")),
    Sketcher.Constraint("Radius", 6, Q("1.5 mm")),
    Sketcher.Constraint("DistanceY", 5, 3, -1, 1, Q("70 mm")),
    Sketcher.Constraint("DistanceY", 5, 2, -1, 1, Q("64 mm")),
    Sketcher.Constraint("DistanceX", -1, 1, 5, 3, Q("61.6 mm")),
    Sketcher.Constraint("DistanceX", -1, 1, 2, 2, Q("89.857699 mm")),
    Sketcher.Constraint("Distance", 1, Q("35.299451 mm")),
    Sketcher.Constraint("Distance", 3, Q("24.429571 mm")),
    Sketcher.Constraint("DistanceX", -1, 1, 6, 1, Q("83.976362 mm")),
])
pad3 = body.newObject("PartDesign::Pad", "Pad002")
pad3.Profile = sketch9
pad3.Length = 6.35
pad3.Reversed = True
doc.recompute()

datumplane = body.newObject("PartDesign::Plane", "DatumPlane")
datumplane.AttachmentSupport = (doc.getObject("YZ_Plane"), [""])
datumplane.MapMode = "FlatFace"
datumplane.AttachmentOffset = App.Placement(Vector(0, 0, 116.6), App.Rotation())
mirrored = body.newObject("PartDesign::Mirrored", "Mirrored")
mirrored.Originals = [pad3]
mirrored.MirrorPlane = (datumplane, [""])
body.Tip = mirrored
doc.recompute()

fillet9 = body.newObject("PartDesign::Fillet", "Fillet008")
fillet9.Base = (mirrored, edges_at(mirrored, [
    (52.976, -64.832, 3.175),
    (70.859, -60, 3.175),
    (180.224, -64.832, 3.175),
    (162.341, -60, 3.175),
]))
fillet9.Radius = 5

# Sketch on XY plane
sketch10 = body.newObject("Sketcher::SketchObject", "Sketch009")
sketch10.AttachmentSupport = (doc.getObject("XY_Plane"), [""])
sketch10.MapMode = "FlatFace"
sketch10.AttachmentOffset = App.Placement(Vector(0, 0, 6.35), App.Rotation())
sketch10.addGeometry([
    Part.ArcOfCircle(Part.Circle(Vector(22, -90, 0), Vector(0, 0, 1), 10), math.radians(-80), math.radians(-37)),  # 0
    Part.LineSegment(Vector(23, -100, 0), Vector(86, -89, 0)),  # 1
    Part.ArcOfCircle(Part.Circle(Vector(85, -81, 0), Vector(0, 0, 1), 8), math.radians(-129), math.radians(-80)),  # 2
    Part.LineSegment(Vector(80, -87, 0), Vector(73, -81, 0)),  # 3
    Part.LineSegment(Vector(73, -81, 0), Vector(36, -87, 0)),  # 4
    Part.LineSegment(Vector(36, -87, 0), Vector(30, -96, 0)),  # 5
], False)
sketch10.addConstraint([
    Sketcher.Constraint("Tangent", 0, 1, 1, 1),
    Sketcher.Constraint("Tangent", 1, 2, 2, 2),
    Sketcher.Constraint("Tangent", 2, 1, 3, 1),
    Sketcher.Constraint("Coincident", 3, 2, 4, 1),
    Sketcher.Constraint("Coincident", 4, 2, 5, 1),
    Sketcher.Constraint("Tangent", 5, 2, 0, 2),
    Sketcher.Constraint("Parallel", 1, 4),
    Sketcher.Constraint("Radius", 0, Q("10 mm")),
    Sketcher.Constraint("Radius", 2, Q("7.5 mm")),
    Sketcher.Constraint("DistanceY", 0, 3, -1, 1, Q("90 mm")),
    Sketcher.Constraint("DistanceY", 5, 2, -1, 1, Q("96 mm")),
    Sketcher.Constraint("DistanceX", -1, 1, 0, 3, Q("21.6 mm")),
    Sketcher.Constraint("DistanceX", 0, 1, 4, 2, Q("12.6752 mm")),
    Sketcher.Constraint("Distance", 1, Q("64.101992 mm")),
    Sketcher.Constraint("Distance", 3, Q("9.810749 mm")),
    Sketcher.Constraint("Distance", 4, Q("37.346669 mm")),
])
pad4 = body.newObject("PartDesign::Pad", "Pad003")
pad4.Profile = sketch10
pad4.Length = 6.35
pad4.Reversed = True
doc.recompute()

fillet10 = body.newObject("PartDesign::Fillet", "Fillet009")
fillet10.Base = (pad4, edges_at(pad4, [(36.033, -87.422, 3.175), (72.798, -80.855, 3.175)]))
fillet10.Radius = 3
doc.recompute()

datumplane2 = body.newObject("PartDesign::Plane", "DatumPlane001")
datumplane2.AttachmentSupport = (doc.getObject("YZ_Plane"), [""])
datumplane2.MapMode = "FlatFace"
datumplane2.AttachmentOffset = App.Placement(Vector(0, 0, 116.6), App.Rotation())
mirrored2 = body.newObject("PartDesign::Mirrored", "Mirrored001")
mirrored2.Originals = [pad4]
mirrored2.MirrorPlane = (datumplane2, [""])
body.Tip = mirrored2
doc.recompute()

fillet11 = body.newObject("PartDesign::Fillet", "Fillet010")
fillet11.Base = (mirrored2, edges_at(mirrored2, [(197.167, -87.422, 3.175), (160.402, -80.855, 3.175)]))
fillet11.Radius = 3

# Sketch on XY plane
sketch11 = body.newObject("Sketcher::SketchObject", "Sketch010")
sketch11.AttachmentSupport = (doc.getObject("XY_Plane"), [""])
sketch11.MapMode = "FlatFace"
sketch11.AttachmentOffset = App.Placement(Vector(0, 0, 6.35), App.Rotation())
add_polygon(sketch11, [(18, -82), (36, -50), (18, -18)])  # lines 0-2
add_polygon(sketch11, [(215, -82), (215, -18), (198, -50)])  # lines 3-5
sketch11.addConstraint([
    Sketcher.Constraint("Vertical", 2),
    Sketcher.Constraint("Vertical", 3),
    Sketcher.Constraint("Parallel", 0, 4),
    Sketcher.Constraint("Parallel", 1, 5),
    Sketcher.Constraint("Horizontal", 1, 2, 3, 2),
    Sketcher.Constraint("Horizontal", 0, 2, 4, 2),
    Sketcher.Constraint("Horizontal", 2, 2, 5, 2),
    Sketcher.Constraint("DistanceY", 2, 2, 2, 1, Q("64 mm")),
    Sketcher.Constraint("DistanceY", 0, 2, -1, 1, Q("50 mm")),
    Sketcher.Constraint("DistanceX", -1, 1, 1, 2, Q("18 mm")),
    Sketcher.Constraint("DistanceX", -1, 1, 0, 2, Q("35.5 mm")),
    Sketcher.Constraint("DistanceX", -1, 1, 3, 2, Q("215.2 mm")),
])
pocket7 = body.newObject("PartDesign::Pocket", "Pocket006")
pocket7.Profile = sketch11
pocket7.Length = 10
doc.recompute()

fillet12 = body.newObject("PartDesign::Fillet", "Fillet011")
fillet12.Base = (pocket7, edges_at(pocket7, [
    (35.5, -50, 3.175),
    (18, -82, 3.175),
    (18, -18, 3.175),
    (215.2, -18, 3.175),
    (215.2, -82, 3.175),
    (197.7, -50, 3.175),
]))
fillet12.Radius = 3

# Sketch on XY plane
sketch12 = body.newObject("Sketcher::SketchObject", "Sketch011")
sketch12.AttachmentSupport = (doc.getObject("XY_Plane"), [""])
sketch12.MapMode = "FlatFace"
sketch12.AttachmentOffset = App.Placement(Vector(0, 0, 6.35), App.Rotation())
sketch12.addGeometry([
    Part.Circle(Vector(188.2, -65, 0), Vector(0, 0, 1), 1.7),
    Part.Circle(Vector(45, -65, 0), Vector(0, 0, 1), 1.7),
], False)
sketch12.addConstraint([
    Sketcher.Constraint("Equal", 0, 1),
    Sketcher.Constraint("Horizontal", 0, 3, 1, 3),
    Sketcher.Constraint("Diameter", 0, Q("3.4 mm")),
    Sketcher.Constraint("DistanceY", 0, 3, -1, 1, Q("65 mm")),
    Sketcher.Constraint("DistanceX", -1, 1, 1, 3, Q("45 mm")),
    Sketcher.Constraint("DistanceX", -1, 1, 0, 3, Q("188.2 mm")),
])
pocket8 = body.newObject("PartDesign::Pocket", "Pocket007")
pocket8.Profile = sketch12
pocket8.Length = 10

# Sketch on XY plane
sketch13 = body.newObject("Sketcher::SketchObject", "Sketch012")
sketch13.AttachmentSupport = (doc.getObject("XY_Plane"), [""])
sketch13.MapMode = "FlatFace"
sketch13.AttachmentOffset = App.Placement(Vector(0, 0, 6.35), App.Rotation())
sketch13.addGeometry([
    Part.Circle(Vector(161.6, -84.2, 0), Vector(0, 0, 1), 1.6),
    Part.Circle(Vector(71.6, -84.2, 0), Vector(0, 0, 1), 1.6),
], False)
sketch13.addConstraint([
    Sketcher.Constraint("Equal", 0, 1),
    Sketcher.Constraint("Horizontal", 0, 3, 1, 3),
    Sketcher.Constraint("Diameter", 0, Q("3.1 mm")),
    Sketcher.Constraint("DistanceX", 1, 3, 0, 3, Q("90 mm")),
    Sketcher.Constraint("DistanceX", -1, 1, 0, 3, Q("161.6 mm")),
    Sketcher.Constraint("DistanceY", 0, 3, -1, 1, Q("84.25 mm")),
])
pocket9 = body.newObject("PartDesign::Pocket", "Pocket008")
pocket9.Profile = sketch13
pocket9.Length = 10

doc.recompute()
